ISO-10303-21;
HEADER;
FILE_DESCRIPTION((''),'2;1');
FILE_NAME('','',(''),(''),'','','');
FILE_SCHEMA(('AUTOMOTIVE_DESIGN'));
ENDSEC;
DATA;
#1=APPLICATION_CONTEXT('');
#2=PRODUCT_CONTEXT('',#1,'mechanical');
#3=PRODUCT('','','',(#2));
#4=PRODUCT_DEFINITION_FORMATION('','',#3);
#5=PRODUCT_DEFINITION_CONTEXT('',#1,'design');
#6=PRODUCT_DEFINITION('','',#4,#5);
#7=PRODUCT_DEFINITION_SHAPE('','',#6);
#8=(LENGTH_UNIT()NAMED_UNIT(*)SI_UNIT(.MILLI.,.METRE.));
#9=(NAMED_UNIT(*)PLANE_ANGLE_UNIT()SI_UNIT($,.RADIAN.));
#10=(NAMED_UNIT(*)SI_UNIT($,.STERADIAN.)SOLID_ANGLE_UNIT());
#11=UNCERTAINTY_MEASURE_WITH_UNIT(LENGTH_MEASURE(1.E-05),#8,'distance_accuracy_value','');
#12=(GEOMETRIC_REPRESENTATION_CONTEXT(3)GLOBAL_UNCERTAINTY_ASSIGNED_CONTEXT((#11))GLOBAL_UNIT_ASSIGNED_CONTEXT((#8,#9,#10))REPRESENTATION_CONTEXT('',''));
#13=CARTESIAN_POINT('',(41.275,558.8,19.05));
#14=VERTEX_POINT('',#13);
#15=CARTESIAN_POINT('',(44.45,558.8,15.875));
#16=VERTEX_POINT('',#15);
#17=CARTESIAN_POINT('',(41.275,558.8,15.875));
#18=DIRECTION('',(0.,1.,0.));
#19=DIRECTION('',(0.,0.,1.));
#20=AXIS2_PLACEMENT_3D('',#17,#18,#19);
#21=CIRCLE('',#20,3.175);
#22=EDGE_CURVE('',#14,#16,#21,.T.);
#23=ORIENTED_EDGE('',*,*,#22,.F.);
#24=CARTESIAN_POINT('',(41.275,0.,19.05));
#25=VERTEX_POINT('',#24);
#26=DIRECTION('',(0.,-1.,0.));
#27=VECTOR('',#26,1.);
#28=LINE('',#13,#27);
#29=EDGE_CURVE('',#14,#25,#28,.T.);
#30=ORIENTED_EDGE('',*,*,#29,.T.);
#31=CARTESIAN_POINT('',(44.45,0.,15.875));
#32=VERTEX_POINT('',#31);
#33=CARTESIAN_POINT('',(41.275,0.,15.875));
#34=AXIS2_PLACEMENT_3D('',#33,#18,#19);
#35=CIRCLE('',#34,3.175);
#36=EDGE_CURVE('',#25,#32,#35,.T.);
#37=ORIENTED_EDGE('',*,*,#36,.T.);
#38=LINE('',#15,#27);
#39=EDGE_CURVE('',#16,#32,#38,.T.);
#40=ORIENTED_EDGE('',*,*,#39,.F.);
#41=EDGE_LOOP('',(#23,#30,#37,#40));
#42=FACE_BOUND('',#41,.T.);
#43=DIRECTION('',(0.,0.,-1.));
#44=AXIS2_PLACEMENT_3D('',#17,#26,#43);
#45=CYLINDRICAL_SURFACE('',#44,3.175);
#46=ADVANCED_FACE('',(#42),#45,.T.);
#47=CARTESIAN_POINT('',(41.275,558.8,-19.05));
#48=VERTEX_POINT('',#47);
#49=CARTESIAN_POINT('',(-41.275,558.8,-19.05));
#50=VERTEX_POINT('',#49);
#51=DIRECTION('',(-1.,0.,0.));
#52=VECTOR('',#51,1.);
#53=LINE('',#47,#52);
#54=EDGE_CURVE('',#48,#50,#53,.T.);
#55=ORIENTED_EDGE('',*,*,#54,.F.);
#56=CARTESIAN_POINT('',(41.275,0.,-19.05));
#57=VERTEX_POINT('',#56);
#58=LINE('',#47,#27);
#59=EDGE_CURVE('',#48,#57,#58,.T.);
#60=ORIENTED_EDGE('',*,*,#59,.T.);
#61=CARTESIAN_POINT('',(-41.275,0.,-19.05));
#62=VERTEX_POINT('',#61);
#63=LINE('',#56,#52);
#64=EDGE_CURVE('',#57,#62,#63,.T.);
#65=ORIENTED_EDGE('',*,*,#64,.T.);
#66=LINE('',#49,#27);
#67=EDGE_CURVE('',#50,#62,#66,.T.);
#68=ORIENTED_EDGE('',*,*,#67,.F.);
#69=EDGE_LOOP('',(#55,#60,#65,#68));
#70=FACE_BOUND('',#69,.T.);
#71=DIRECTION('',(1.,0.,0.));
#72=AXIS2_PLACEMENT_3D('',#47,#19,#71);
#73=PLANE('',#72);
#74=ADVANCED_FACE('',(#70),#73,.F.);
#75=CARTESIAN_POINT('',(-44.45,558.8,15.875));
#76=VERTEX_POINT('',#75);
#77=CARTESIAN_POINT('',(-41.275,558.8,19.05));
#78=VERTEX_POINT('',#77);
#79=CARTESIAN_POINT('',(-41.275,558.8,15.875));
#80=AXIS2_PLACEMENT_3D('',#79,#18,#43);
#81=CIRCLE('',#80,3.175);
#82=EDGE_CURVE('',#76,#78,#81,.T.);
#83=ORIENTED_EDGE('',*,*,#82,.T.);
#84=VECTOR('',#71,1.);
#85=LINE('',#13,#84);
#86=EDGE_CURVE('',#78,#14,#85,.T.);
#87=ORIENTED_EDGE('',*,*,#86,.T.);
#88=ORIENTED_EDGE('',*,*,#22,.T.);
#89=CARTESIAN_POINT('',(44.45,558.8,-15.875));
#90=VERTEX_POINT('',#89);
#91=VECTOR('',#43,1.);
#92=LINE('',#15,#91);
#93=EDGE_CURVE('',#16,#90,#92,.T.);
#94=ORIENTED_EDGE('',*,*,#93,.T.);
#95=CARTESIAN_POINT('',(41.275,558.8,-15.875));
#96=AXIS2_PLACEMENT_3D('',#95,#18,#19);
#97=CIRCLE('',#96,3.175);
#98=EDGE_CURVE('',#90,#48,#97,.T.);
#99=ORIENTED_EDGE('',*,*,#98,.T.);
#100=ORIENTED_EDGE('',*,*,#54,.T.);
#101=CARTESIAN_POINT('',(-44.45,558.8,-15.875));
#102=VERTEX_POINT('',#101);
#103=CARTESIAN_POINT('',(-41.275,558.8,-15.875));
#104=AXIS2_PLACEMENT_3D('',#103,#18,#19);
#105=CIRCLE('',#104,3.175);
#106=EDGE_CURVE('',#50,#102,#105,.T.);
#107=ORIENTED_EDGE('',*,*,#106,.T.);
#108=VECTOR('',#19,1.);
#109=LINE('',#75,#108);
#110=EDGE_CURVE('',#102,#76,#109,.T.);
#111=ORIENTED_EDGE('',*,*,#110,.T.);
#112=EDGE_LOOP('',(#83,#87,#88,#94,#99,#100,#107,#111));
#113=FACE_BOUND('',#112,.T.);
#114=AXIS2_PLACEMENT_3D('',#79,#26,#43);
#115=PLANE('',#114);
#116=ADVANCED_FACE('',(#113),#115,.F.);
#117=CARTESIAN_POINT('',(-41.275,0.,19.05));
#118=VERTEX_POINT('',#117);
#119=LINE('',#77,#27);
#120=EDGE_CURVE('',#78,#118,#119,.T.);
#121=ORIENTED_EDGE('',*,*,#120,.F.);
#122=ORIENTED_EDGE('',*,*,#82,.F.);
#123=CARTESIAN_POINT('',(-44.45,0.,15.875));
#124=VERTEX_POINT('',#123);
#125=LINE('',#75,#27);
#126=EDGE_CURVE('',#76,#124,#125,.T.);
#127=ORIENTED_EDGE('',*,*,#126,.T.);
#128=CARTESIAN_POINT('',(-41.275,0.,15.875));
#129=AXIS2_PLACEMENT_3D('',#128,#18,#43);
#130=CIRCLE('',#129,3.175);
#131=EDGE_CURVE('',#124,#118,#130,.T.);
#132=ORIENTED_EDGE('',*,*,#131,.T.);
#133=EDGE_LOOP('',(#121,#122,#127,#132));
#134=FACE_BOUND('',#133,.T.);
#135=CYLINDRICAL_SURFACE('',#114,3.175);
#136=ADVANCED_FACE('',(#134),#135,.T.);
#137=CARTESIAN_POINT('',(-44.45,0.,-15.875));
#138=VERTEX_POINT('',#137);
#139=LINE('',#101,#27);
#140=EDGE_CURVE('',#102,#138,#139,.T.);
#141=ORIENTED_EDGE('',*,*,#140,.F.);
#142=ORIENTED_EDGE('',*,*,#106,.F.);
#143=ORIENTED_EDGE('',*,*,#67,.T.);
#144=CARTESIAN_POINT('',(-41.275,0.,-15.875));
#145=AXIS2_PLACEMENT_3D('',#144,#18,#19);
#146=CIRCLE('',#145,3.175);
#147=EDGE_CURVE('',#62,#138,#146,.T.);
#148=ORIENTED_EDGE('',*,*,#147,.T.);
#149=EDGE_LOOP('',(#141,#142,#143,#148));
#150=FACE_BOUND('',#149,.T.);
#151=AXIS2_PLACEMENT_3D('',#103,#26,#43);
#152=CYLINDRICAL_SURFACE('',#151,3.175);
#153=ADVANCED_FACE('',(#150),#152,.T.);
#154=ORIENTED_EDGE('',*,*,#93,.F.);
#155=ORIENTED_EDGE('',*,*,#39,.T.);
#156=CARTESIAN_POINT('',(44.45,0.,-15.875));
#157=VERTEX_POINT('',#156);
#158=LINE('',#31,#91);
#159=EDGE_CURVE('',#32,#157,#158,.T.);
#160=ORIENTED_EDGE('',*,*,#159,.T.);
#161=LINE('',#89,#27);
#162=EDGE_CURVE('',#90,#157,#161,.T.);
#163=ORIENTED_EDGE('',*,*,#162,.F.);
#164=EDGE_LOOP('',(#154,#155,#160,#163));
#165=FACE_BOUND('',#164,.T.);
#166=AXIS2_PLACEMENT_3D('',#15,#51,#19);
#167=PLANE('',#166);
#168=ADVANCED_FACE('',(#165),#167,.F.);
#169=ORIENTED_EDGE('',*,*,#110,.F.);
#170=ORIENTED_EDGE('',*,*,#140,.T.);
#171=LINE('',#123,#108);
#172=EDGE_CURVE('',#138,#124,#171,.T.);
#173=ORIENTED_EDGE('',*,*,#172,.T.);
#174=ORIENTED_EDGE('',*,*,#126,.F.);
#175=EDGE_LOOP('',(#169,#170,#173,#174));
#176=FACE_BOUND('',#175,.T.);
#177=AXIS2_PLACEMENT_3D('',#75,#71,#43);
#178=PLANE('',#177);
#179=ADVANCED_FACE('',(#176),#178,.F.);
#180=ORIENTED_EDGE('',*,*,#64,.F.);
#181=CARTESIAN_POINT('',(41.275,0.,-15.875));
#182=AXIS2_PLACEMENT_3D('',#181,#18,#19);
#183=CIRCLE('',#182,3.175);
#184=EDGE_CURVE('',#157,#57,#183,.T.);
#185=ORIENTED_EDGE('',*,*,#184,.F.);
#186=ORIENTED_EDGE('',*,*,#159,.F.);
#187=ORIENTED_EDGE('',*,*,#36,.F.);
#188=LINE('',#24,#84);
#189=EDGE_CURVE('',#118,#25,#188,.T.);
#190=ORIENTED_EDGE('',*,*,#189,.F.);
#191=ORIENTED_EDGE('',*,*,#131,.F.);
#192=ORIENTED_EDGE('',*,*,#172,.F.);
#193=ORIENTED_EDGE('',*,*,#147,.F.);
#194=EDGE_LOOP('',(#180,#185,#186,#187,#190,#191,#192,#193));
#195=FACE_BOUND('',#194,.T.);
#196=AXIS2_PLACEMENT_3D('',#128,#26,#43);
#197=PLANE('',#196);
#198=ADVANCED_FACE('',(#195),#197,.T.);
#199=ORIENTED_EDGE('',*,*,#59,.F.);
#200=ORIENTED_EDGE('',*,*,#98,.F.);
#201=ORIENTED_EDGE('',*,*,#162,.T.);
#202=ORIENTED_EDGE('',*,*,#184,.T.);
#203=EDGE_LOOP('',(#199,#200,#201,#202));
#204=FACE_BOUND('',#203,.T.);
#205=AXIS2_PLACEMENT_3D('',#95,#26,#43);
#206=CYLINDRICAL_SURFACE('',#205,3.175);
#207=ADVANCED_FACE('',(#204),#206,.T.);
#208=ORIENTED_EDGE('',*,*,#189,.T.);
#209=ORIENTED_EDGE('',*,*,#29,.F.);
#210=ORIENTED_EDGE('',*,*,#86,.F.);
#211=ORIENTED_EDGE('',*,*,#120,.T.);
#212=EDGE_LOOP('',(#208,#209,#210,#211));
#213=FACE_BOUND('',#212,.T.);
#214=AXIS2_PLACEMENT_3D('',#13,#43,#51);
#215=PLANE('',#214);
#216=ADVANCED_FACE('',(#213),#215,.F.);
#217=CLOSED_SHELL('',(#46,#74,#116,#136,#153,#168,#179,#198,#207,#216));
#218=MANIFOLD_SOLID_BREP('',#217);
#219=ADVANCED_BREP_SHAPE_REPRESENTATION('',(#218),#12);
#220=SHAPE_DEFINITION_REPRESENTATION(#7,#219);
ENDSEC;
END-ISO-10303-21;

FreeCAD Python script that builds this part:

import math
import FreeCAD as App
import Part
import Sketcher
from FreeCAD import Vector
Q = App.Units.Quantity

doc = App.newDocument("Part")
body = doc.addObject("PartDesign::Body", "Body")

# Sketch on XZ plane
sketch1 = doc.addObject("Sketcher::SketchObject", "Sketch")
body.addObject(sketch1)
sketch1.AttachmentSupport = (doc.XZ_Plane, [""])
sketch1.MapMode = "FlatFace"
sketch1.addGeometry(Part.LineSegment(Vector(-41.3, 19.1, 0), Vector(41.3, 19.1, 0)), False)
sketch1.addGeometry(Part.ArcOfCircle(Part.Circle(Vector(41.3, 15.9, 0), Vector(0, 0, 1), 3.2), math.radians(0), math.radians(90)), False)
sketch1.addGeometry(Part.LineSegment(Vector(44.5, 15.9, 0), Vector(44.5, -15.9, 0)), False)
sketch1.addGeometry(Part.ArcOfCircle(Part.Circle(Vector(41.3, -15.9, 0), Vector(0, 0, 1), 3.2), math.radians(-90), math.radians(0)), False)
sketch1.addGeometry(Part.LineSegment(Vector(41.3, -19.1, 0), Vector(-41.3, -19.1, 0)), False)
sketch1.addGeometry(Part.ArcOfCircle(Part.Circle(Vector(-41.3, -15.9, 0), Vector(0, 0, 1), 3.2), math.radians(-180), math.radians(-90)), False)
sketch1.addGeometry(Part.LineSegment(Vector(-44.5, -15.9, 0), Vector(-44.5, 15.9, 0)), False)
sketch1.addGeometry(Part.ArcOfCircle(Part.Circle(Vector(-41.3, 15.9, 0), Vector(0, 0, 1), 3.2), math.radians(90), math.radians(180)), False)
sketch1.addConstraint(Sketcher.Constraint("Tangent", 0, 2, 1, 2))
sketch1.addConstraint(Sketcher.Constraint("Tangent", 1, 1, 2, 1))
sketch1.addConstraint(Sketcher.Constraint("Tangent", 2, 2, 3, 2))
sketch1.addConstraint(Sketcher.Constraint("Tangent", 3, 1, 4, 1))
sketch1.addConstraint(Sketcher.Constraint("Tangent", 4, 2, 5, 2))
sketch1.addConstraint(Sketcher.Constraint("Tangent", 5, 1, 6, 1))
sketch1.addConstraint(Sketcher.Constraint("Tangent", 6, 2, 7, 2))
sketch1.addConstraint(Sketcher.Constraint("Tangent", 7, 1, 0, 1))
sketch1.addConstraint(Sketcher.Constraint("Horizontal", 0))
sketch1.addConstraint(Sketcher.Constraint("Vertical", 2))
sketch1.addConstraint(Sketcher.Constraint("Horizontal", 4))
sketch1.addConstraint(Sketcher.Constraint("Vertical", 6))
sketch1.addConstraint(Sketcher.Constraint("Equal", 1, 3))
sketch1.addConstraint(Sketcher.Constraint("Equal", 3, 5))
sketch1.addConstraint(Sketcher.Constraint("Equal", 5, 7))
sketch1.addConstraint(Sketcher.Constraint("Symmetric", 1, 3, 5, 3, -1, 1))
sketch1.addConstraint(Sketcher.Constraint("Radius", 1, Q("0.125 in")))
sketch1.addConstraint(Sketcher.Constraint("DistanceX", 0, 1, 0, 2, Q("3.25 in")))
sketch1.addConstraint(Sketcher.Constraint("DistanceY", 2, 2, 2, 1, Q("1.25 in")))
pad1 = doc.addObject("PartDesign::Pad", "Pad")
body.addObject(pad1)
pad1.Profile = sketch1
pad1.Length = Q("22 in")
pad1.Reversed = True

doc.recompute()
